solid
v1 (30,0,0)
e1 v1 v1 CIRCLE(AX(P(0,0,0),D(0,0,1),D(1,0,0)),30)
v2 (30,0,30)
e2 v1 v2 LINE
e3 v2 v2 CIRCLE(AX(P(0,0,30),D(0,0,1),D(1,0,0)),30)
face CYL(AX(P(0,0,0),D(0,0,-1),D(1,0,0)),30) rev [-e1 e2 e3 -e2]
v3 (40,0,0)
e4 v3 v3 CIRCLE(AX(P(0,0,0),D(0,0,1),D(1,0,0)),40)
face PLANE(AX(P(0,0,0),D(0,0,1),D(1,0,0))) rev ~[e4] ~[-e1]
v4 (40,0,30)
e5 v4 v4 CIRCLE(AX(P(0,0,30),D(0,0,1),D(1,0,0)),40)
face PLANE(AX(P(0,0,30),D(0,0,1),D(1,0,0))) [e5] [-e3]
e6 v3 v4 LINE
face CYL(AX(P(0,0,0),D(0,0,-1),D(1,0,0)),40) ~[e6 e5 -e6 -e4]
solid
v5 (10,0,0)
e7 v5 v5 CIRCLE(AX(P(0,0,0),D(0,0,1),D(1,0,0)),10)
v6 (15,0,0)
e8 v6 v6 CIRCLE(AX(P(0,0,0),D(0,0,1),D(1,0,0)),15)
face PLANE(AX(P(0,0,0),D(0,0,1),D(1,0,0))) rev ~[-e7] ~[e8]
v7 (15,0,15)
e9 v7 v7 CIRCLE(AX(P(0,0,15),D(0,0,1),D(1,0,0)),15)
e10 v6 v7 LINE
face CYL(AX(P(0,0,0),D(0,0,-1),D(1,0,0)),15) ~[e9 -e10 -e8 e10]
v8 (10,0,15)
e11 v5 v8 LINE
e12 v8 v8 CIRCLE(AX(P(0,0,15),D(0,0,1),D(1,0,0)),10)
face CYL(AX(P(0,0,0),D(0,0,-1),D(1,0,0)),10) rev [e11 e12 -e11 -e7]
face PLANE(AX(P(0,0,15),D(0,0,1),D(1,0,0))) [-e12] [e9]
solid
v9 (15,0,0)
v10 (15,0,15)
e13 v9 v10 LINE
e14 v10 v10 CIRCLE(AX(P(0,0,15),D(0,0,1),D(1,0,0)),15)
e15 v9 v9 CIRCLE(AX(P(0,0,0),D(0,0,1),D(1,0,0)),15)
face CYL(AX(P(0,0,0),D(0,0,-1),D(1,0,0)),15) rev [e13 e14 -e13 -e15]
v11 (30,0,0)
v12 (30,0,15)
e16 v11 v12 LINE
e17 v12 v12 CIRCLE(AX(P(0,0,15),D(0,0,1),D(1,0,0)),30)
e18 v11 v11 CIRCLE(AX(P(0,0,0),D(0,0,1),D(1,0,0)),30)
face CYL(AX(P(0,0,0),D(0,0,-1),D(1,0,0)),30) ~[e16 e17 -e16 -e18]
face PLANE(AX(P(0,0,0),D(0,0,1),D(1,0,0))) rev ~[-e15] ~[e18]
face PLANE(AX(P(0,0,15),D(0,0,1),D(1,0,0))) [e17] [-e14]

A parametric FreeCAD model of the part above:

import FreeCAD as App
import Part
import Sketcher

doc = App.newDocument("Part")
body = doc.addObject("PartDesign::Body", "Body")

# Sketch on XY plane
sketch1 = body.newObject("Sketcher::SketchObject", "Sketch")
sketch1.AttachmentSupport = (doc.getObject("XY_Plane"), [""])
sketch1.MapMode = "FlatFace"
sketch1.addGeometry(Part.Circle(App.Vector(0, 0, 0), App.Vector(0, 0, 1), 40), False)
sketch1.addGeometry(Part.Circle(App.Vector(0, 0, 0), App.Vector(0, 0, 1), 30), False)
sketch1.addConstraint(Sketcher.Constraint("Coincident", 0, 3, -1, 1))
sketch1.addConstraint(Sketcher.Constraint("Coincident", 1, 3, -1, 1))
sketch1.addConstraint(Sketcher.Constraint("Diameter", 0, 80.0))
sketch1.addConstraint(Sketcher.Constraint("Diameter", 1, 60.0))
pad1 = body.newObject("PartDesign::Pad", "Pad")
pad1.Profile = sketch1
pad1.Length = 30
body2 = doc.addObject("PartDesign::Body", "Body001")

# Sketch on XY plane
sketch2 = body2.newObject("Sketcher::SketchObject", "Sketch001")
sketch2.AttachmentSupport = (doc.getObject("XY_Plane001"), [""])
sketch2.MapMode = "FlatFace"
sketch2.addGeometry(Part.Circle(App.Vector(0, 0, 0), App.Vector(0, 0, 1), 15), False)
sketch2.addGeometry(Part.Circle(App.Vector(0, 0, 0), App.Vector(0, 0, 1), 10), False)
sketch2.addConstraint(Sketcher.Constraint("Coincident", 0, 3, -1, 1))
sketch2.addConstraint(Sketcher.Constraint("Coincident", 1, 3, -1, 1))
sketch2.addConstraint(Sketcher.Constraint("Diameter", 0, 30.0))
sketch2.addConstraint(Sketcher.Constraint("Diameter", 1, 20.0))
pad2 = body2.newObject("PartDesign::Pad", "Pad001")
pad2.Profile = sketch2
pad2.Length = 20

# Sketch on XY plane
sketch3 = body2.newObject("Sketcher::SketchObject", "Sketch002")
sketch3.AttachmentSupport = (doc.getObject("XY_Plane001"), [""])
sketch3.MapMode = "FlatFace"
sketch3.AttachmentOffset = App.Placement(App.Vector(0, 0, 20), App.Rotation())
sketch3.addGeometry(Part.Circle(App.Vector(0, 0, 0), App.Vector(0, 0, 1), 15), False)
sketch3.addGeometry(Part.Circle(App.Vector(0, 0, 0), App.Vector(0, 0, 1), 10), False)
sketch3.addConstraint(Sketcher.Constraint("Coincident", 0, 3, -1, 1))
sketch3.addConstraint(Sketcher.Constraint("Coincident", 1, 3, -1, 1))
sketch3.addConstraint(Sketcher.Constraint("Diameter", 0, 30.0))
sketch3.addConstraint(Sketcher.Constraint("Diameter", 1, 20.0))
pocket1 = body2.newObject("PartDesign::Pocket", "Pocket")
pocket1.Profile = sketch3
pocket1.Length = 5
body3 = doc.addObject("PartDesign::Body", "Body002")

# Sketch on XY plane
sketch4 = body3.newObject("Sketcher::SketchObject", "Sketch003")
sketch4.AttachmentSupport = (doc.getObject("XY_Plane002"), [""])
sketch4.MapMode = "FlatFace"
sketch4.addGeometry(Part.Circle(App.Vector(0, 0, 0), App.Vector(0, 0, 1), 30), False)
sketch4.addGeometry(Part.Circle(App.Vector(0, 0, 0), App.Vector(0, 0, 1), 15), False)
sketch4.addConstraint(Sketcher.Constraint("Coincident", 0, 3, -1, 1))
sketch4.addConstraint(Sketcher.Constraint("Coincident", 1, 3, -1, 1))
sketch4.addConstraint(Sketcher.Constraint("Diameter", 0, 60.0))
sketch4.addConstraint(Sketcher.Constraint("Diameter", 1, 30.0))
pad3 = body3.newObject("PartDesign::Pad", "Pad002")
pad3.Profile = sketch4
pad3.Length = 15

doc.recompute()
